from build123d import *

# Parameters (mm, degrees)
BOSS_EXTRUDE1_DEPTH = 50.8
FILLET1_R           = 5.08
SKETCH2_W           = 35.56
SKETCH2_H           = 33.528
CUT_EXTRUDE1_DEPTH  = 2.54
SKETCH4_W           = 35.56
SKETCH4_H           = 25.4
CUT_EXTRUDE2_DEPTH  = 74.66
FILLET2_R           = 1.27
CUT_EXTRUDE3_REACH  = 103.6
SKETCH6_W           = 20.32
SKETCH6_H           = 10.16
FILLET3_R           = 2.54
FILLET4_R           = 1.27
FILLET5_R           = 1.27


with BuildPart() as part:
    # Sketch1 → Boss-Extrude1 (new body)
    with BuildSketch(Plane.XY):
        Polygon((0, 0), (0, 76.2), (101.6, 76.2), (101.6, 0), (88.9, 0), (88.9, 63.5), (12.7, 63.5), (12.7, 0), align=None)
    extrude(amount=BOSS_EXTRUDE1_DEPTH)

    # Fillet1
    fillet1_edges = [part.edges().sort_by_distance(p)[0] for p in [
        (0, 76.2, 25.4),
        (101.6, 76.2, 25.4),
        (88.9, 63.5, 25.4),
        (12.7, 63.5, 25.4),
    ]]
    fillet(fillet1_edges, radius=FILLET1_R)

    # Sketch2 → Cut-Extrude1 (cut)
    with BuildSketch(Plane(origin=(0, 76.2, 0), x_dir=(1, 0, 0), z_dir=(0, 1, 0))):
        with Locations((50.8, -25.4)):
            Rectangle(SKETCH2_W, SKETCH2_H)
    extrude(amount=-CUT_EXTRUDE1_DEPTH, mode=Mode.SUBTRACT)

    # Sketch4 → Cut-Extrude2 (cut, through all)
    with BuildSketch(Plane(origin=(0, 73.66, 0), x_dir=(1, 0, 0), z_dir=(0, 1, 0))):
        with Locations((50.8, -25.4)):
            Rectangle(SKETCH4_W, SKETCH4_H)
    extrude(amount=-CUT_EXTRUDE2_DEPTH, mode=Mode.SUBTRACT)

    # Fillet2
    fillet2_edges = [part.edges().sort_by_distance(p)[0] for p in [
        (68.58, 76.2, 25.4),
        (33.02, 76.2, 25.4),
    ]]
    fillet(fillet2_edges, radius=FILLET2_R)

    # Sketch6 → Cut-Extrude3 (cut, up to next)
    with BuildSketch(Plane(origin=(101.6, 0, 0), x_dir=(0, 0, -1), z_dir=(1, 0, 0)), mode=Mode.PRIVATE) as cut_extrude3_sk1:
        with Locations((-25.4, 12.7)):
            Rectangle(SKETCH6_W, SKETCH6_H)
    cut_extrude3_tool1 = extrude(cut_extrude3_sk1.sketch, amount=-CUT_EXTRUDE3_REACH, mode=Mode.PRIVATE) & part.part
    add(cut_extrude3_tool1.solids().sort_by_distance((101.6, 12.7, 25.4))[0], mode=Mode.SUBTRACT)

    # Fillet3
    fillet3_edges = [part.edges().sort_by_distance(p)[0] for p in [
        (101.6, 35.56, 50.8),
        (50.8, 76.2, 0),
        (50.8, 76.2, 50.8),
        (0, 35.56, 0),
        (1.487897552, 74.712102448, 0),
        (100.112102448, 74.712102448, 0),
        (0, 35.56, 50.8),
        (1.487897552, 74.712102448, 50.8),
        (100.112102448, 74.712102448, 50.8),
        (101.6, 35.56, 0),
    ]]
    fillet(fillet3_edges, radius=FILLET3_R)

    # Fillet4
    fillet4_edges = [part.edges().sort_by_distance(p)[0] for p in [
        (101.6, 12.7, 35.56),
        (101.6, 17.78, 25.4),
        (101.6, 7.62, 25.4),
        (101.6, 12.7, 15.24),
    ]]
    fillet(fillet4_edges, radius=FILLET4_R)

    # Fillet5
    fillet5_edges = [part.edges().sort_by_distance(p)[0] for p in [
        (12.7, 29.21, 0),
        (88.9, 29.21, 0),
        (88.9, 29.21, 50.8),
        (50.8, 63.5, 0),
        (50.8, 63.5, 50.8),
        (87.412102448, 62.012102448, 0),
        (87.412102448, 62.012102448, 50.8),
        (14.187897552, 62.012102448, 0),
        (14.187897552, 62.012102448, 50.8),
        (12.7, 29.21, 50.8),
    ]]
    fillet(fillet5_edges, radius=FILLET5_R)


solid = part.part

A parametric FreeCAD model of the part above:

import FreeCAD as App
import Part
import Sketcher
from FreeCAD import Vector
Q = App.Units.Quantity


def edges_at(feature, points):
    """Names of the edges that pass closest to the given points."""
    edges = feature.Shape.Edges
    near = lambda p: min(range(len(edges)), key=lambda i: edges[i].distToShape(Part.Vertex(*p))[0])
    return sorted({f"Edge{near(p) + 1}" for p in points})


def add_polygon(sketch, points):
    """Adds a closed chain of lines whose ends are joined by coincident constraints."""
    first, n = sketch.GeometryCount, len(points)
    for a, b in zip(points, points[1:] + points[:1]):
        sketch.addGeometry(Part.LineSegment(App.Vector(*a, 0), App.Vector(*b, 0)), False)
    for i in range(n):
        sketch.addConstraint(Sketcher.Constraint("Coincident", first + i, 2, first + (i + 1) % n, 1))

doc = App.newDocument("Part")
body = doc.addObject("PartDesign::Body", "Body")

sketch1 = body.newObject("Sketcher::SketchObject", "Sketch")
sketch1.AttachmentSupport = (doc.getObject("XY_Plane"), [""])
sketch1.MapMode = "FlatFace"
add_polygon(sketch1, [(0, 76), (0, 0), (13, 0), (13, 64), (89, 64), (89, 0), (102, 0), (102, 76)])
sketch1.addConstraint(Sketcher.Constraint("Vertical", 0))
sketch1.addConstraint(Sketcher.Constraint("Horizontal", 1))
sketch1.addConstraint(Sketcher.Constraint("Vertical", 2))
sketch1.addConstraint(Sketcher.Constraint("Horizontal", 3))
sketch1.addConstraint(Sketcher.Constraint("Vertical", 4))
sketch1.addConstraint(Sketcher.Constraint("Horizontal", 5))
sketch1.addConstraint(Sketcher.Constraint("Vertical", 6))
sketch1.addConstraint(Sketcher.Constraint("Horizontal", 7))
sketch1.addConstraint(Sketcher.Constraint("Coincident", 0, 2, -1, 1))
sketch1.addConstraint(Sketcher.Constraint("PointOnObject", 4, 2, -1))
sketch1.addConstraint(Sketcher.Constraint("Equal", 1, 5))
sketch1.addConstraint(Sketcher.Constraint("Equal", 3, 0))
sketch1.addConstraint(Sketcher.Constraint("DistanceX", 3, 1, 3, 2, Q("3 in")))
sketch1.addConstraint(Sketcher.Constraint("DistanceX", 7, 2, 7, 1, Q("4 in")))
sketch1.addConstraint(Sketcher.Constraint("DistanceY", 2, 1, 2, 2, Q("2.5 in")))
pad1 = body.newObject("PartDesign::Pad", "Pad")
pad1.Profile = sketch1
pad1.Length = Q("2 in")
doc.recompute()

fillet = body.newObject("PartDesign::Fillet", "Fillet")
fillet.Base = (pad1, edges_at(pad1, [
    (0, 76.2, 25.4),
    (101.6, 76.2, 25.4),
    (88.9, 63.5, 25.4),
    (12.7, 63.5, 25.4),
]))
fillet.Radius = Q("0.2 in")

sketch2 = body.newObject("Sketcher::SketchObject", "Sketch001")
sketch2.AttachmentSupport = (doc.getObject("XZ_Plane"), [""])
sketch2.MapMode = "FlatFace"
sketch2.AttachmentOffset = App.Placement(Vector(0, 0, -3 * 25.4), App.Rotation())
add_polygon(sketch2, [(33, 9), (33, 42), (69, 42), (69, 9)])
sketch2.addConstraint(Sketcher.Constraint("Vertical", 0))
sketch2.addConstraint(Sketcher.Constraint("Horizontal", 1))
sketch2.addConstraint(Sketcher.Constraint("Vertical", 2))
sketch2.addConstraint(Sketcher.Constraint("Horizontal", 3))
sketch2.addConstraint(Sketcher.Constraint("DistanceX", 1, 1, 1, 2, Q("1.4 in")))
sketch2.addConstraint(Sketcher.Constraint("DistanceY", 0, 1, 0, 2, Q("1.32 in")))
sketch2.addConstraint(Sketcher.Constraint("DistanceX", -1, 1, 0, 2, Q("1.3 in")))
sketch2.addConstraint(Sketcher.Constraint("DistanceY", -1, 1, 0, 2, Q("1.66 in")))
pocket1 = body.newObject("PartDesign::Pocket", "Pocket")
pocket1.Profile = sketch2
pocket1.Length = Q("0.1 in")
pocket1.Reversed = True

sketch3 = body.newObject("Sketcher::SketchObject", "Sketch002")
sketch3.AttachmentSupport = (doc.getObject("XZ_Plane"), [""])
sketch3.MapMode = "FlatFace"
sketch3.AttachmentOffset = App.Placement(Vector(0, 0, -2.9 * 25.4), App.Rotation())
add_polygon(sketch3, [(33, 13), (33, 38), (69, 38), (69, 13)])
sketch3.addConstraint(Sketcher.Constraint("Vertical", 0))
sketch3.addConstraint(Sketcher.Constraint("Horizontal", 1))
sketch3.addConstraint(Sketcher.Constraint("Vertical", 2))
sketch3.addConstraint(Sketcher.Constraint("Horizontal", 3))
sketch3.addConstraint(Sketcher.Constraint("DistanceY", 0, 1, 0, 2, Q("1 in")))
sketch3.addConstraint(Sketcher.Constraint("DistanceX", 1, 1, 1, 2, Q("1.4 in")))
sketch3.addConstraint(Sketcher.Constraint("DistanceX", -1, 1, 0, 2, Q("1.3 in")))
sketch3.addConstraint(Sketcher.Constraint("DistanceY", -1, 1, 0, 2, Q("1.5 in")))
pocket2 = body.newObject("PartDesign::Pocket", "Pocket001")
pocket2.Profile = sketch3
pocket2.Type = "ThroughAll"
pocket2.Reversed = True
doc.recompute()

fillet2 = body.newObject("PartDesign::Fillet", "Fillet001")
fillet2.Base = (pocket2, edges_at(pocket2, [(68.58, 76.2, 25.4), (33.02, 76.2, 25.4)]))
fillet2.Radius = Q("0.05 in")

sketch4 = body.newObject("Sketcher::SketchObject", "Sketch003")
sketch4.AttachmentSupport = (doc.getObject("YZ_Plane"), [""])
sketch4.MapMode = "FlatFace"
sketch4.AttachmentOffset = App.Placement(Vector(0, 0, 4 * 25.4), App.Rotation())
add_polygon(sketch4, [(18, 36), (8, 36), (8, 15), (18, 15)])
sketch4.addConstraint(Sketcher.Constraint("Horizontal", 0))
sketch4.addConstraint(Sketcher.Constraint("Vertical", 1))
sketch4.addConstraint(Sketcher.Constraint("Horizontal", 2))
sketch4.addConstraint(Sketcher.Constraint("Vertical", 3))
sketch4.addConstraint(Sketcher.Constraint("DistanceX", 0, 2, 0, 1, Q("0.4 in")))
sketch4.addConstraint(Sketcher.Constraint("DistanceY", 1, 2, 1, 1, Q("0.8 in")))
sketch4.addConstraint(Sketcher.Constraint("DistanceX", -1, 1, 0, 2, Q("0.3 in")))
sketch4.addConstraint(Sketcher.Constraint("DistanceY", -1, 1, 0, 2, Q("1.4 in")))
pocket3 = body.newObject("PartDesign::Pocket", "Pocket002")
pocket3.Profile = sketch4
pocket3.Type = "UpToFirst"
doc.recompute()

fillet3 = body.newObject("PartDesign::Fillet", "Fillet002")
fillet3.Base = (pocket3, edges_at(pocket3, [
    (101.6, 35.56, 50.8),
    (50.8, 76.2, 0),
    (50.8, 76.2, 50.8),
    (0, 35.56, 0),
    (1.488, 74.712, 0),
    (100.112, 74.712, 0),
    (0, 35.56, 50.8),
    (1.488, 74.712, 50.8),
    (100.112, 74.712, 50.8),
    (101.6, 35.56, 0),
]))
fillet3.Radius = Q("0.1 in")
doc.recompute()

fillet4 = body.newObject("PartDesign::Fillet", "Fillet003")
fillet4.Base = (fillet3, edges_at(fillet3, [
    (101.6, 12.7, 35.56),
    (101.6, 17.78, 25.4),
    (101.6, 7.62, 25.4),
    (101.6, 12.7, 15.24),
]))
fillet4.Radius = Q("0.05 in")
doc.recompute()

fillet5 = body.newObject("PartDesign::Fillet", "Fillet004")
fillet5.Base = (fillet4, edges_at(fillet4, [
    (12.7, 29.21, 0),
    (88.9, 29.21, 0),
    (88.9, 29.21, 50.8),
    (50.8, 63.5, 0),
    (50.8, 63.5, 50.8),
    (87.412, 62.012, 0),
    (87.412, 62.012, 50.8),
    (14.188, 62.012, 0),
    (14.188, 62.012, 50.8),
    (12.7, 29.21, 50.8),
]))
fillet5.Radius = Q("0.05 in")

doc.recompute()
